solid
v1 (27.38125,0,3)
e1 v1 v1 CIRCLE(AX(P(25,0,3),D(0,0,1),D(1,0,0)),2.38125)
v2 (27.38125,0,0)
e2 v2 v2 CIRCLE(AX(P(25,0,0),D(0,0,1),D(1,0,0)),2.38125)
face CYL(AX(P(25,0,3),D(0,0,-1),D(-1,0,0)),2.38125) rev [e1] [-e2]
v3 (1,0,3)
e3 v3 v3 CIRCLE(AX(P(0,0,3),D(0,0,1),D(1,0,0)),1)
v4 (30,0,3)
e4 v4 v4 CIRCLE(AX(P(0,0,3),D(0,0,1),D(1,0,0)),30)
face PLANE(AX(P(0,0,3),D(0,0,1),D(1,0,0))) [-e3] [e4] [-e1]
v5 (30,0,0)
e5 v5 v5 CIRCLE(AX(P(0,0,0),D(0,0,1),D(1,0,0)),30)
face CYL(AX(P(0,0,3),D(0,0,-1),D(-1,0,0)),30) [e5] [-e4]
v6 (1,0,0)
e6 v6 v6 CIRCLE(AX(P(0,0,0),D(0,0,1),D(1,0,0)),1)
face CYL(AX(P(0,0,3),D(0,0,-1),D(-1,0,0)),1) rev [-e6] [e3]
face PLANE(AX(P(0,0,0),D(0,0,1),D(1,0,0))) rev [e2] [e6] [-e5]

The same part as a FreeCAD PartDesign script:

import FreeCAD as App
import Part
import Sketcher

doc = App.newDocument("Part")
params = doc.addObject("Spreadsheet::Sheet", "Params")
for row, (alias, value) in enumerate([
    ("sketch1_diameter", "60 mm"),
    ("sketch1_diameter2", "2 mm"),
    ("pad1_length", "3 mm"),
], start=1):
    params.set(f"A{row}", alias)
    params.set(f"B{row}", "=" + value)
    params.setAlias(f"B{row}", alias)

body = doc.addObject("PartDesign::Body", "Body")

# Sketch on XY plane
sketch1 = body.newObject("Sketcher::SketchObject", "Sketch")
sketch1.AttachmentSupport = (doc.getObject("XY_Plane"), [""])
sketch1.MapMode = "FlatFace"
sketch1.addGeometry(Part.Circle(App.Vector(0, 0, 0), App.Vector(0, 0, 1), 30), False)
sketch1.addGeometry(Part.Circle(App.Vector(0, 0, 0), App.Vector(0, 0, 1), 1), False)
sketch1.addGeometry(Part.Circle(App.Vector(25, 0, 0), App.Vector(0, 0, 1), 2.4), False)
sketch1.addConstraint(Sketcher.Constraint("Coincident", 0, 3, -1, 1))
sketch1.addConstraint(Sketcher.Constraint("Coincident", 1, 3, -1, 1))
sketch1.addConstraint(Sketcher.Constraint("PointOnObject", 2, 3, -1))
sketch1.addConstraint(Sketcher.Constraint("Diameter", 0, 60.0))
sketch1.addConstraint(Sketcher.Constraint("Diameter", 1, 2.0))
sketch1.addConstraint(Sketcher.Constraint("DistanceX", -1, 1, 2, 3, 25.0))
sketch1.addConstraint(Sketcher.Constraint("Diameter", 2, 4.7625))
sketch1.setExpression("Constraints[3]", "Params.sketch1_diameter")
sketch1.setExpression("Constraints[4]", "Params.sketch1_diameter2")
pad1 = body.newObject("PartDesign::Pad", "Pad")
pad1.Profile = sketch1
pad1.setExpression("Length", "Params.pad1_length")

doc.recompute()
